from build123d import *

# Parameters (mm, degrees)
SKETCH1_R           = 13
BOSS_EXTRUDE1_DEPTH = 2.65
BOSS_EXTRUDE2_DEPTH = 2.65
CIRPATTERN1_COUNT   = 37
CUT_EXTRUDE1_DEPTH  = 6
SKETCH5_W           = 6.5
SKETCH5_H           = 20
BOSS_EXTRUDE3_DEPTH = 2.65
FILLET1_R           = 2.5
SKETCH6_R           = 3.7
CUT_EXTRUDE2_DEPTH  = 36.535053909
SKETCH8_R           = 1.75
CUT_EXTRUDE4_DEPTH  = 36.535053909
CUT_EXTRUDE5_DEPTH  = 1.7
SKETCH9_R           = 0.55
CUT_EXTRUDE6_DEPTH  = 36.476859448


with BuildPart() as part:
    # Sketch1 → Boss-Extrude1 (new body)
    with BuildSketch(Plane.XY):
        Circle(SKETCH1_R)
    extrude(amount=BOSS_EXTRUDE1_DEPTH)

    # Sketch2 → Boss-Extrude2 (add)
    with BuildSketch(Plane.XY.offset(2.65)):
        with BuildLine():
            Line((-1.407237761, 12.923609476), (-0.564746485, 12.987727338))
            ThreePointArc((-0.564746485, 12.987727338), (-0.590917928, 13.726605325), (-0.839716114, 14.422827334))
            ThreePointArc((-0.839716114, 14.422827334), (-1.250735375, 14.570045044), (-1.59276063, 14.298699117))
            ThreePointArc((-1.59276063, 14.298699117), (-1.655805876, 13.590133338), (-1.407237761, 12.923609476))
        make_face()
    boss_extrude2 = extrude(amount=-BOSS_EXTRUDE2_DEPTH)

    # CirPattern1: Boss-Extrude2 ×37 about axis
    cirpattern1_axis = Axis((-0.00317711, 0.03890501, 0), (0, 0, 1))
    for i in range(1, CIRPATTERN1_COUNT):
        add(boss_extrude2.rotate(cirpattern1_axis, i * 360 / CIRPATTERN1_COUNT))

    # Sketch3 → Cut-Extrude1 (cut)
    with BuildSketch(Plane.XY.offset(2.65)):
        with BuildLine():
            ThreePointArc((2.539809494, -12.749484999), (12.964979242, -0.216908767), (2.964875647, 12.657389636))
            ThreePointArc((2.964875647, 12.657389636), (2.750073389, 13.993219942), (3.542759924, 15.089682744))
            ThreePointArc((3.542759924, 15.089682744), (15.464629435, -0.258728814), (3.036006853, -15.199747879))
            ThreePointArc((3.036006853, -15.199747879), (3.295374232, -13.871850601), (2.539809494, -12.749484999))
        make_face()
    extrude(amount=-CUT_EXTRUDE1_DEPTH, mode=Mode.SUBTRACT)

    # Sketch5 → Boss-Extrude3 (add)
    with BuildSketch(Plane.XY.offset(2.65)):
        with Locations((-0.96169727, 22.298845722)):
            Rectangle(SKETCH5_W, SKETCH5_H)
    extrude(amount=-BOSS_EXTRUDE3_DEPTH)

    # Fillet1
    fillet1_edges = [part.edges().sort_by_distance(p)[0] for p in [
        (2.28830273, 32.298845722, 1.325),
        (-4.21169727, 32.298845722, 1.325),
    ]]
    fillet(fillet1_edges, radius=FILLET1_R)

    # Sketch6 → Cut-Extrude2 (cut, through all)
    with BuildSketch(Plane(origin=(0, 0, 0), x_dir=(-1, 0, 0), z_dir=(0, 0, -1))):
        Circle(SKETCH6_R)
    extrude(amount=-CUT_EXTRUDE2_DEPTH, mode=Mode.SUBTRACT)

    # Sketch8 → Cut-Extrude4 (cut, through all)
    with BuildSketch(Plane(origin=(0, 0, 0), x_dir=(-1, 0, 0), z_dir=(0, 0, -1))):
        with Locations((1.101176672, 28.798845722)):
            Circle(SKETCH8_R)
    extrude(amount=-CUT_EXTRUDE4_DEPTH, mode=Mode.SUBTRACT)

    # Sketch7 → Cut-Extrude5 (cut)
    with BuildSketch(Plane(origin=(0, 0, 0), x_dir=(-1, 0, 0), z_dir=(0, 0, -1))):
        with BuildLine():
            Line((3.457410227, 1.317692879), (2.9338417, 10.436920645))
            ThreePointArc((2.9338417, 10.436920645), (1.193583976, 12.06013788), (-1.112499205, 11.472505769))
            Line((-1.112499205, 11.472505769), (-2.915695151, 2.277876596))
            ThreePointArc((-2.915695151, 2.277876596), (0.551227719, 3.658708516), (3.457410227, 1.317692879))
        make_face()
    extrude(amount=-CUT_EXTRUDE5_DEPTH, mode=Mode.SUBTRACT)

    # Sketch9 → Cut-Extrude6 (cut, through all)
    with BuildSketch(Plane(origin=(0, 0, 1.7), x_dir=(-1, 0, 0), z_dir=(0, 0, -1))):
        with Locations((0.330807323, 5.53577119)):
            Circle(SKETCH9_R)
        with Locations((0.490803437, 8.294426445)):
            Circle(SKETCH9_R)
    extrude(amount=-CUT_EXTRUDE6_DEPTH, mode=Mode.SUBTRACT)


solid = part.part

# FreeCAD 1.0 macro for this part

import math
import FreeCAD as App
import Part
import Sketcher
Q = App.Units.Quantity


def edges_at(feature, points):
    """Names of the edges that pass closest to the given points."""
    edges = feature.Shape.Edges
    near = lambda p: min(range(len(edges)), key=lambda i: edges[i].distToShape(Part.Vertex(*p))[0])
    return sorted({f"Edge{near(p) + 1}" for p in points})

doc = App.newDocument("Part")
params = doc.addObject("Spreadsheet::Sheet", "Params")
for row, (alias, value) in enumerate([
    ("sketch1_diameter", "26 mm"),
    ("pad1_length", "2.65 mm"),
    ("pad2_length", "2.65 mm"),
    ("pocket1_length", "6 mm"),
    ("sketch4_height", "20 mm"),
    ("sketch4_width", "6.5 mm"),
    ("pad3_length", "2.65 mm"),
    ("fillet_radius", "2.5 mm"),
    ("sketch5_diameter", "7.4 mm"),
    ("sketch6_diameter", "3.5 mm"),
    ("sketch7_radius", "3.7 mm"),
    ("pocket4_length", "1.7 mm"),
    ("sketch8_diameter", "1.1 mm"),
], start=1):
    params.set(f"A{row}", alias)
    params.set(f"B{row}", "=" + value)
    params.setAlias(f"B{row}", alias)

body = doc.addObject("PartDesign::Body", "Body")

sketch1 = body.newObject("Sketcher::SketchObject", "Sketch")
sketch1.AttachmentSupport = (doc.getObject("XY_Plane"), [""])
sketch1.MapMode = "FlatFace"
sketch1.addGeometry(Part.Circle(App.Vector(0, 0, 0), App.Vector(0, 0, 1), 13), False)
sketch1.addConstraint(Sketcher.Constraint("Coincident", 0, 3, -1, 1))
sketch1.addConstraint(Sketcher.Constraint("Diameter", 0, Q("26 mm")))
sketch1.setExpression("Constraints[1]", "Params.sketch1_diameter")
pad1 = body.newObject("PartDesign::Pad", "Pad")
pad1.Profile = sketch1
pad1.setExpression("Length", "Params.pad1_length")

sketch2 = body.newObject("Sketcher::SketchObject", "Sketch001")
sketch2.AttachmentSupport = (doc.getObject("XY_Plane"), [""])
sketch2.MapMode = "FlatFace"
sketch2.AttachmentOffset = App.Placement(App.Vector(0, 0, 2.65), App.Rotation())
sketch2.addGeometry(Part.LineSegment(App.Vector(-1.407238, 12.923609, 0), App.Vector(-0.564746, 12.987727, 0)), False)
sketch2.addGeometry(Part.ArcOfCircle(Part.Circle(App.Vector(-2.959316, 13.272813, 0), App.Vector(0, 0, 1), 2.41148), math.radians(-6.789396), math.radians(28.482581)), False)
sketch2.addGeometry(Part.ArcOfCircle(Part.Circle(App.Vector(-1.177657, 14.126701, 0), App.Vector(0, 0, 1), 0.449327), math.radians(41.227081), math.radians(157.493301)), False)
sketch2.addGeometry(Part.ArcOfCircle(Part.Circle(App.Vector(-0.060901, 13.805313, 0), App.Vector(0, 0, 1), 1.609355), math.radians(162.147124), math.radians(213.220423)), False)
sketch2.addConstraint(Sketcher.Constraint("Coincident", 0, 2, 1, 1))
sketch2.addConstraint(Sketcher.Constraint("Coincident", 1, 2, 2, 1))
sketch2.addConstraint(Sketcher.Constraint("Coincident", 2, 2, 3, 1))
sketch2.addConstraint(Sketcher.Constraint("Coincident", 3, 2, 0, 1))
sketch2.addConstraint(Sketcher.Constraint("Radius", 1, Q("2.41148 mm")))
sketch2.addConstraint(Sketcher.Constraint("Radius", 2, Q("0.449327 mm")))
sketch2.addConstraint(Sketcher.Constraint("Radius", 3, Q("1.609355 mm")))
sketch2.addConstraint(Sketcher.Constraint("DistanceY", 2, 3, 2, 2, Q("0.171999 mm")))
sketch2.addConstraint(Sketcher.Constraint("DistanceY", -1, 1, 2, 3, Q("14.126701 mm")))
sketch2.addConstraint(Sketcher.Constraint("DistanceX", 3, 3, -1, 1, Q("0.060901 mm")))
sketch2.addConstraint(Sketcher.Constraint("DistanceY", 1, 3, 3, 3, Q("0.5325 mm")))
sketch2.addConstraint(Sketcher.Constraint("DistanceY", 0, 2, 1, 2, Q("1.4351 mm")))
sketch2.addConstraint(Sketcher.Constraint("DistanceX", 1, 3, 1, 2, Q("2.1196 mm")))
sketch2.addConstraint(Sketcher.Constraint("DistanceX", 2, 2, -1, 1, Q("1.592761 mm")))
sketch2.addConstraint(Sketcher.Constraint("DistanceY", -1, 1, 3, 2, Q("12.923609 mm")))
pad2 = body.newObject("PartDesign::Pad", "Pad001")
pad2.Profile = sketch2
pad2.setExpression("Length", "Params.pad2_length")
pad2.Reversed = True
doc.recompute()

datumline = body.newObject("PartDesign::Line", "DatumLine")
datumline.Placement = App.Placement(App.Vector(-0.003177, 0.038905, 0), App.Rotation(App.Vector(0, 0, 1), App.Vector(0, 0, 1)))
polarpattern = body.newObject("PartDesign::PolarPattern", "PolarPattern")
polarpattern.Originals = [pad2]
polarpattern.Axis = (datumline, [""])
polarpattern.Angle = 360
polarpattern.Occurrences = 37
body.Tip = polarpattern

sketch3 = body.newObject("Sketcher::SketchObject", "Sketch002")
sketch3.AttachmentSupport = (doc.getObject("XY_Plane"), [""])
sketch3.MapMode = "FlatFace"
sketch3.AttachmentOffset = App.Placement(App.Vector(0, 0, 2.65), App.Rotation())
sketch3.addGeometry(Part.ArcOfCircle(Part.Circle(App.Vector(-0.042204, 0.000706, 0), App.Vector(0, 0, 1), 13.009003), math.radians(-78.551974), math.radians(76.634995)), False)
sketch3.addGeometry(Part.ArcOfCircle(Part.Circle(App.Vector(1.562777, -14.222715, 0), App.Vector(0, 0, 1), 1.767767), math.radians(-33.551974), math.radians(56.448026)), False)
sketch3.addGeometry(Part.ArcOfCircle(Part.Circle(App.Vector(-0.042204, 0.000706, 0), App.Vector(0, 0, 1), 15.509003), math.radians(-78.551974), math.radians(76.634995)), False)
sketch3.addGeometry(Part.ArcOfCircle(Part.Circle(App.Vector(4.469964, 13.584594, 0), App.Vector(0, 0, 1), 1.767767), math.radians(121.634995), math.radians(211.634995)), False)
sketch3.addConstraint(Sketcher.Constraint("Coincident", 0, 1, 1, 2))
sketch3.addConstraint(Sketcher.Constraint("Coincident", 1, 1, 2, 1))
sketch3.addConstraint(Sketcher.Constraint("Coincident", 2, 2, 3, 1))
sketch3.addConstraint(Sketcher.Constraint("Coincident", 3, 2, 0, 2))
sketch3.addConstraint(Sketcher.Constraint("Coincident", 2, 3, 0, 3))
sketch3.addConstraint(Sketcher.Constraint("Equal", 1, 3))
sketch3.addConstraint(Sketcher.Constraint("Radius", 0, Q("13.009003 mm")))
sketch3.addConstraint(Sketcher.Constraint("Radius", 1, Q("1.767767 mm")))
sketch3.addConstraint(Sketcher.Constraint("Radius", 2, Q("15.509003 mm")))
sketch3.addConstraint(Sketcher.Constraint("DistanceX", -1, 1, 0, 1, Q("2.539809 mm")))
sketch3.addConstraint(Sketcher.Constraint("DistanceX", -1, 1, 2, 2, Q("3.54276 mm")))
sketch3.addConstraint(Sketcher.Constraint("DistanceY", -1, 1, 3, 2, Q("12.65739 mm")))
sketch3.addConstraint(Sketcher.Constraint("DistanceX", 0, 3, 1, 3, Q("1.60498 mm")))
sketch3.addConstraint(Sketcher.Constraint("DistanceY", 1, 3, 0, 3, Q("14.223421 mm")))
sketch3.addConstraint(Sketcher.Constraint("DistanceX", 2, 3, 3, 3, Q("4.512168 mm")))
pocket1 = body.newObject("PartDesign::Pocket", "Pocket")
pocket1.Profile = sketch3
pocket1.setExpression("Length", "Params.pocket1_length")

sketch4 = body.newObject("Sketcher::SketchObject", "Sketch003")
sketch4.AttachmentSupport = (doc.getObject("XY_Plane"), [""])
sketch4.MapMode = "FlatFace"
sketch4.AttachmentOffset = App.Placement(App.Vector(0, 0, 2.65), App.Rotation())
sketch4.addGeometry(Part.LineSegment(App.Vector(-4.211697, 32.298846, 0), App.Vector(-4.211697, 12.298846, 0)), False)
sketch4.addGeometry(Part.LineSegment(App.Vector(-4.211697, 12.298846, 0), App.Vector(2.288303, 12.298846, 0)), False)
sketch4.addGeometry(Part.LineSegment(App.Vector(2.288303, 12.298846, 0), App.Vector(2.288303, 32.298846, 0)), False)
sketch4.addGeometry(Part.LineSegment(App.Vector(2.288303, 32.298846, 0), App.Vector(-4.211697, 32.298846, 0)), False)
sketch4.addConstraint(Sketcher.Constraint("Coincident", 0, 2, 1, 1))
sketch4.addConstraint(Sketcher.Constraint("Coincident", 1, 2, 2, 1))
sketch4.addConstraint(Sketcher.Constraint("Coincident", 2, 2, 3, 1))
sketch4.addConstraint(Sketcher.Constraint("Coincident", 3, 2, 0, 1))
sketch4.addConstraint(Sketcher.Constraint("Vertical", 0))
sketch4.addConstraint(Sketcher.Constraint("Horizontal", 1))
sketch4.addConstraint(Sketcher.Constraint("Vertical", 2))
sketch4.addConstraint(Sketcher.Constraint("Horizontal", 3))
sketch4.addConstraint(Sketcher.Constraint("DistanceY", 0, 2, 0, 1, Q("20 mm")))
sketch4.addConstraint(Sketcher.Constraint("DistanceX", 1, 1, 1, 2, Q("6.5 mm")))
sketch4.addConstraint(Sketcher.Constraint("DistanceX", 0, 2, -1, 1, Q("4.211697 mm")))
sketch4.addConstraint(Sketcher.Constraint("DistanceY", -1, 1, 0, 2, Q("12.298846 mm")))
sketch4.setExpression("Constraints[8]", "Params.sketch4_height")
sketch4.setExpression("Constraints[9]", "Params.sketch4_width")
pad3 = body.newObject("PartDesign::Pad", "Pad002")
pad3.Profile = sketch4
pad3.setExpression("Length", "Params.pad3_length")
pad3.Reversed = True
doc.recompute()

fillet = body.newObject("PartDesign::Fillet", "Fillet")
fillet.Base = (pad3, edges_at(pad3, [(2.288, 32.299, 1.325), (-4.212, 32.299, 1.325)]))
fillet.setExpression("Radius", "Params.fillet_radius")

sketch5 = body.newObject("Sketcher::SketchObject", "Sketch004")
sketch5.AttachmentSupport = (doc.getObject("XY_Plane"), [""])
sketch5.MapMode = "FlatFace"
sketch5.addGeometry(Part.Circle(App.Vector(0, 0, 0), App.Vector(0, 0, 1), 3.7), False)
sketch5.addConstraint(Sketcher.Constraint("Coincident", 0, 3, -1, 1))
sketch5.addConstraint(Sketcher.Constraint("Diameter", 0, Q("7.4 mm")))
sketch5.setExpression("Constraints[1]", "Params.sketch5_diameter")
pocket2 = body.newObject("PartDesign::Pocket", "Pocket001")
pocket2.Profile = sketch5
pocket2.Type = "ThroughAll"
pocket2.Reversed = True

sketch6 = body.newObject("Sketcher::SketchObject", "Sketch005")
sketch6.AttachmentSupport = (doc.getObject("XY_Plane"), [""])
sketch6.MapMode = "FlatFace"
sketch6.addGeometry(Part.Circle(App.Vector(-1.101177, 28.798846, 0), App.Vector(0, 0, 1), 1.75), False)
sketch6.addConstraint(Sketcher.Constraint("Diameter", 0, Q("3.5 mm")))
sketch6.addConstraint(Sketcher.Constraint("DistanceX", 0, 3, -1, 1, Q("1.101177 mm")))
sketch6.addConstraint(Sketcher.Constraint("DistanceY", -1, 1, 0, 3, Q("28.798846 mm")))
sketch6.setExpression("Constraints[0]", "Params.sketch6_diameter")
pocket3 = body.newObject("PartDesign::Pocket", "Pocket002")
pocket3.Profile = sketch6
pocket3.Type = "ThroughAll"
pocket3.Reversed = True

sketch7 = body.newObject("Sketcher::SketchObject", "Sketch006")
sketch7.AttachmentSupport = (doc.getObject("XY_Plane"), [""])
sketch7.MapMode = "FlatFace"
sketch7.addGeometry(Part.LineSegment(App.Vector(-3.45741, 1.317693, 0), App.Vector(-2.933842, 10.436921, 0)), False)
sketch7.addGeometry(Part.ArcOfCircle(Part.Circle(App.Vector(-0.57829, 9.656002, 0), App.Vector(0, 0, 1), 2.481624), math.radians(47.052811), math.radians(161.658469)), False)
sketch7.addGeometry(Part.LineSegment(App.Vector(1.112499, 11.472506, 0), App.Vector(2.915695, 2.277877, 0)), False)
sketch7.addGeometry(Part.ArcOfCircle(Part.Circle(App.Vector(0, 0, 0), App.Vector(0, 0, 1), 3.7), math.radians(37.998607), math.radians(159.137088)), False)
sketch7.addConstraint(Sketcher.Constraint("Coincident", 0, 2, 1, 2))
sketch7.addConstraint(Sketcher.Constraint("Coincident", 1, 1, 2, 1))
sketch7.addConstraint(Sketcher.Constraint("Coincident", 2, 2, 3, 1))
sketch7.addConstraint(Sketcher.Constraint("Coincident", 3, 2, 0, 1))
sketch7.addConstraint(Sketcher.Constraint("Coincident", 3, 3, -1, 1))
sketch7.addConstraint(Sketcher.Constraint("Radius", 3, Q("3.7 mm")))
sketch7.addConstraint(Sketcher.Constraint("DistanceY", -1, 1, 1, 3, Q("9.656002 mm")))
sketch7.addConstraint(Sketcher.Constraint("Radius", 1, Q("2.481624 mm")))
sketch7.addConstraint(Sketcher.Constraint("DistanceX", -1, 1, 1, 1, Q("1.112499 mm")))
sketch7.addConstraint(Sketcher.Constraint("DistanceX", 1, 3, -1, 1, Q("0.57829 mm")))
sketch7.addConstraint(Sketcher.Constraint("DistanceX", 0, 2, -1, 1, Q("2.933842 mm")))
sketch7.addConstraint(Sketcher.Constraint("DistanceX", 3, 2, -1, 1, Q("3.45741 mm")))
sketch7.addConstraint(Sketcher.Constraint("DistanceY", 2, 2, 1, 1, Q("9.194629 mm")))
sketch7.setExpression("Constraints[5]", "Params.sketch7_radius")
pocket4 = body.newObject("PartDesign::Pocket", "Pocket003")
pocket4.Profile = sketch7
pocket4.setExpression("Length", "Params.pocket4_length")
pocket4.Reversed = True

sketch8 = body.newObject("Sketcher::SketchObject", "Sketch007")
sketch8.AttachmentSupport = (doc.getObject("XY_Plane"), [""])
sketch8.MapMode = "FlatFace"
sketch8.AttachmentOffset = App.Placement(App.Vector(0, 0, 1.7), App.Rotation())
sketch8.addGeometry(Part.Circle(App.Vector(-0.330807, 5.535771, 0), App.Vector(0, 0, 1), 0.55), False)
sketch8.addGeometry(Part.Circle(App.Vector(-0.490803, 8.294426, 0), App.Vector(0, 0, 1), 0.55), False)
sketch8.addConstraint(Sketcher.Constraint("Equal", 0, 1))
sketch8.addConstraint(Sketcher.Constraint("Diameter", 0, Q("1.1 mm")))
sketch8.addConstraint(Sketcher.Constraint("DistanceY", -1, 1, 0, 3, Q("5.535771 mm")))
sketch8.addConstraint(Sketcher.Constraint("DistanceX", 0, 3, -1, 1, Q("0.330807 mm")))
sketch8.addConstraint(Sketcher.Constraint("DistanceX", 1, 3, -1, 1, Q("0.490803 mm")))
sketch8.addConstraint(Sketcher.Constraint("DistanceY", -1, 1, 1, 3, Q("8.294426 mm")))
sketch8.setExpression("Constraints[1]", "Params.sketch8_diameter")
pocket5 = body.newObject("PartDesign::Pocket", "Pocket004")
pocket5.Profile = sketch8
pocket5.Type = "ThroughAll"
pocket5.Reversed = True

doc.recompute()
